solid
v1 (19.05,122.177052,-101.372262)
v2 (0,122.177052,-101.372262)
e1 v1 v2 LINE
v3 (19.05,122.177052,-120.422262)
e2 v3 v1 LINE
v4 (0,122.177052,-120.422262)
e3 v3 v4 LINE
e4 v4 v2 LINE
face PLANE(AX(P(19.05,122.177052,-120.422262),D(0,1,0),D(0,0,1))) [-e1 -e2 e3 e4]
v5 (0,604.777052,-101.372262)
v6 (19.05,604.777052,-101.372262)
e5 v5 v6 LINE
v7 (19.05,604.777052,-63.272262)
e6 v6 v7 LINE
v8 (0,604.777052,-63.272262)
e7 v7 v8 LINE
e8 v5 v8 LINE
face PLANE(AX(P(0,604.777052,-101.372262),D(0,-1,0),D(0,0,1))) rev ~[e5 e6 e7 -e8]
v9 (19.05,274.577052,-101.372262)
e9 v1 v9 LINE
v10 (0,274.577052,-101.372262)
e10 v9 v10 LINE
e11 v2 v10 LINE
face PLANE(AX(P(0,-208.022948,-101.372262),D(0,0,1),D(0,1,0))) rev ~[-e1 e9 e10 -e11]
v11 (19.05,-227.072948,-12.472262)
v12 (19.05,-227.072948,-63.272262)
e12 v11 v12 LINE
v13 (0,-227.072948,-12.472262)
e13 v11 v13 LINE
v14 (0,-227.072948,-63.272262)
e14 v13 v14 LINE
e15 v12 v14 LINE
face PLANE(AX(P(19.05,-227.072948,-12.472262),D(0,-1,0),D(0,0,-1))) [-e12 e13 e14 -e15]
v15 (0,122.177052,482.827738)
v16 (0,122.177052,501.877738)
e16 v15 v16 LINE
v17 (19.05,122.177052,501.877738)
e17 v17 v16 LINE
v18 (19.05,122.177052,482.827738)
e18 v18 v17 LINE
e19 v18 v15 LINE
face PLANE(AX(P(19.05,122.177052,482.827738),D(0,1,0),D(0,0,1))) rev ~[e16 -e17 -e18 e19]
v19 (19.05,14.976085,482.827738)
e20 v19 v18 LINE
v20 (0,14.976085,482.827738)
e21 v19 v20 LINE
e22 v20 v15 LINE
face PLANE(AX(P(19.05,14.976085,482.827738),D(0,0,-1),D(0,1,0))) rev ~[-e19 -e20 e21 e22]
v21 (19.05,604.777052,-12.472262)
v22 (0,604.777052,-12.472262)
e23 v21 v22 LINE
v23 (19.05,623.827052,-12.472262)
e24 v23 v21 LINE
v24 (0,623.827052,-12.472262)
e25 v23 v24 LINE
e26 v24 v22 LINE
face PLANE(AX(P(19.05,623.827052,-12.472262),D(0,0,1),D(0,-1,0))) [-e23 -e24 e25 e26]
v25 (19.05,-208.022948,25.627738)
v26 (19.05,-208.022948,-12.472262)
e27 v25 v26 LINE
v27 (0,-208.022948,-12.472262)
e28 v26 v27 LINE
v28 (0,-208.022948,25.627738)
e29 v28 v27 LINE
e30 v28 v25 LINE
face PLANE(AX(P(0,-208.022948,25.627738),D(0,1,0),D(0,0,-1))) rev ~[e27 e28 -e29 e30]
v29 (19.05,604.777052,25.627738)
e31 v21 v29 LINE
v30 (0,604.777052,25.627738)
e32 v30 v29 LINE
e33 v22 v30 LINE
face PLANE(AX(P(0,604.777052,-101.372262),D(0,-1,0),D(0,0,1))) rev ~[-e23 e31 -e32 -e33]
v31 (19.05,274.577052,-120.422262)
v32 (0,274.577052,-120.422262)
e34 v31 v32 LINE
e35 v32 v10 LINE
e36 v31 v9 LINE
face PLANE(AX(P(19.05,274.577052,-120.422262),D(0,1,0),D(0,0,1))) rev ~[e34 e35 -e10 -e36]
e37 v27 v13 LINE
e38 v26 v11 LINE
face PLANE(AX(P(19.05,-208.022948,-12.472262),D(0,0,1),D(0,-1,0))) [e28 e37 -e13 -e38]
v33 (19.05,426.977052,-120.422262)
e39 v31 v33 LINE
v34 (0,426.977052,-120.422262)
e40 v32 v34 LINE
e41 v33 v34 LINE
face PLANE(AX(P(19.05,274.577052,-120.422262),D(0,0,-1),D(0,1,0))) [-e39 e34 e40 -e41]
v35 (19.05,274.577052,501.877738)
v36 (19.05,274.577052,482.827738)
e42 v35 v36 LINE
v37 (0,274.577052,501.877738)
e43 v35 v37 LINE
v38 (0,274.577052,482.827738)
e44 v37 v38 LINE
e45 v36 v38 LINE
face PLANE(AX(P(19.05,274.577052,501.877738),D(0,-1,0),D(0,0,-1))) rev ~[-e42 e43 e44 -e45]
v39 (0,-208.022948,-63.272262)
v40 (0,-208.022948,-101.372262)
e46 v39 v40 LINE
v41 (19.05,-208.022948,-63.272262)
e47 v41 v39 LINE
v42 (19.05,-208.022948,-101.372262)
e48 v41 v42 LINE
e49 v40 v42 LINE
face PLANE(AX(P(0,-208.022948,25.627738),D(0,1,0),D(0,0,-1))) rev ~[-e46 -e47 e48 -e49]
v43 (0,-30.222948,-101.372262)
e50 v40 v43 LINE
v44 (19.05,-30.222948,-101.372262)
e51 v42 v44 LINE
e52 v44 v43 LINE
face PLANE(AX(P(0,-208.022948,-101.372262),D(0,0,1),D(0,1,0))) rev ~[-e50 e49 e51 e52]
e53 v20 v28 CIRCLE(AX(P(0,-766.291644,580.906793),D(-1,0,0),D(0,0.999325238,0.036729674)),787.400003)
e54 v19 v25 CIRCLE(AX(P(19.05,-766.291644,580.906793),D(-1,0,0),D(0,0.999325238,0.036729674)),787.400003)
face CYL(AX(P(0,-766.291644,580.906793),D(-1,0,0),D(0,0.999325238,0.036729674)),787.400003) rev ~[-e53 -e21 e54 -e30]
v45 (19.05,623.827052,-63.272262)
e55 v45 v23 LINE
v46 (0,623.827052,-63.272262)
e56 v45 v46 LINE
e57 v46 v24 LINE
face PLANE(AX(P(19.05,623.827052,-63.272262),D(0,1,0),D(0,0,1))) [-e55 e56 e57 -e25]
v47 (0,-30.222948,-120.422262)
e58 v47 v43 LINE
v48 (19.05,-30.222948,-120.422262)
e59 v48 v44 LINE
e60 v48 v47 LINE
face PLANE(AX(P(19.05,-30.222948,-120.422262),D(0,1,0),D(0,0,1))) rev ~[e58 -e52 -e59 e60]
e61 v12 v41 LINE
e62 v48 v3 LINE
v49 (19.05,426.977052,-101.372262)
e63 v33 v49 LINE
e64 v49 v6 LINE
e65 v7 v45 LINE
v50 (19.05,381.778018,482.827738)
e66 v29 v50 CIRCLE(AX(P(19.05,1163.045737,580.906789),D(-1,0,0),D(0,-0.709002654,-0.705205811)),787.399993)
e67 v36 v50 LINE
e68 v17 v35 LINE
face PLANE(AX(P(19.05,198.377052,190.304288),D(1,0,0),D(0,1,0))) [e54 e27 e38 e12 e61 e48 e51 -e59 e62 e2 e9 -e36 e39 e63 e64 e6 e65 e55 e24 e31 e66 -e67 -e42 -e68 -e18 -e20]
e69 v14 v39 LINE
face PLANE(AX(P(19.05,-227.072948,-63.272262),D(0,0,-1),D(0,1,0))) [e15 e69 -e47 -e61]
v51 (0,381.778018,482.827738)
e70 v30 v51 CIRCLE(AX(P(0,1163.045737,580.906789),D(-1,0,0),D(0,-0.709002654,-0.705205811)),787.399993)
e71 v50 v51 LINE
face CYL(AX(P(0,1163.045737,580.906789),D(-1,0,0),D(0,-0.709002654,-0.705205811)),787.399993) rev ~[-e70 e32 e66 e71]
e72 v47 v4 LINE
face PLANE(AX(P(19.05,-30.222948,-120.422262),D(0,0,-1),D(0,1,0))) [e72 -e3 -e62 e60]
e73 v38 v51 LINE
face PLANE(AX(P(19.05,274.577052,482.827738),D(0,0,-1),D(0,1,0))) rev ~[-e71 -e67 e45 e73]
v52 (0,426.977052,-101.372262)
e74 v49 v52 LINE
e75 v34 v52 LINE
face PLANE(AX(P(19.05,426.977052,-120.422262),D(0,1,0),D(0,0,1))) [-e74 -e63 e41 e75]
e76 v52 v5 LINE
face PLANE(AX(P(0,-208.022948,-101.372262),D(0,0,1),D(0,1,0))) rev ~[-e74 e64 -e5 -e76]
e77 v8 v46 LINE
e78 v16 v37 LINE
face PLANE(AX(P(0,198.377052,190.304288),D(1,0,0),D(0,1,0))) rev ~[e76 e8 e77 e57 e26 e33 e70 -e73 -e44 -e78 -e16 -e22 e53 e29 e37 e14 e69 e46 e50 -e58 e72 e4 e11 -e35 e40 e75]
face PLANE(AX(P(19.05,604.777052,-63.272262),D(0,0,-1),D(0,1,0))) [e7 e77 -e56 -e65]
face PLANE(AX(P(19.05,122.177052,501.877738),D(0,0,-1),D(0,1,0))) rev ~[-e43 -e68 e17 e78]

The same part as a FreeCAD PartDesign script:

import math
import FreeCAD as App
import Part
import Sketcher

V = App.Vector
Q = App.Units.Quantity

doc = App.newDocument("Part")
body = doc.addObject("PartDesign::Body", "Body")

sketch1 = doc.addObject("Sketcher::SketchObject", "Sketch")
body.addObject(sketch1)
sketch1.AttachmentSupport = (doc.YZ_Plane, [""])
sketch1.MapMode = "FlatFace"
sketch1.addGeometry([
    Part.LineSegment(V(-208.022948, 25.627738, 0), V(-208.022948, -101.372262, 0)),
    Part.LineSegment(V(-208.022948, -101.372262, 0), V(604.777052, -101.372262, 0)),
    Part.LineSegment(V(604.777052, -101.372262, 0), V(604.777052, 25.627738, 0)),
    Part.ArcOfCircle(Part.Circle(V(1163.045737, 580.906789, 0), V(0, 0, 1), 787.399993), math.radians(177.895071), math.radians(224.846174)),
    Part.LineSegment(V(376.177052, 609.827738, 0), V(20.577052, 609.827738, 0)),
    Part.ArcOfCircle(Part.Circle(V(-766.291644, 580.906793, 0), V(0, 0, 1), 787.400003), math.radians(-44.846173), math.radians(2.104929)),
], False)
sketch1.addConstraint([
    Sketcher.Constraint("Coincident", 0, 2, 1, 1),
    Sketcher.Constraint("Coincident", 1, 2, 2, 1),
    Sketcher.Constraint("Coincident", 2, 2, 3, 2),
    Sketcher.Constraint("Coincident", 3, 1, 4, 1),
    Sketcher.Constraint("Coincident", 4, 2, 5, 2),
    Sketcher.Constraint("Coincident", 5, 1, 0, 1),
    Sketcher.Constraint("Vertical", 0),
    Sketcher.Constraint("Horizontal", 1),
    Sketcher.Constraint("Vertical", 2),
    Sketcher.Constraint("Horizontal", 4),
    Sketcher.Constraint("Horizontal", 2, 2, 5, 1),
    Sketcher.Constraint("Radius", 5, Q("31.0000001 in")),
    Sketcher.Constraint("DistanceX", 1, 1, 1, 2, Q("32 in")),
    Sketcher.Constraint("DistanceX", 4, 2, 4, 1, Q("14 in")),
    Sketcher.Constraint("DistanceY", 0, 2, 0, 1, Q("5 in")),
    Sketcher.Constraint("DistanceX", 3, 1, 2, 2, Q("9 in")),
    Sketcher.Constraint("DistanceY", 0, 2, 4, 2, Q("28 in")),
    Sketcher.Constraint("Radius", 3, Q("787.399993 mm")),
    Sketcher.Constraint("DistanceY", -1, 1, 3, 3, Q("580.906789 mm")),
    Sketcher.Constraint("DistanceX", 0, 2, -1, 1, Q("208.022948 mm")),
])
pad1 = doc.addObject("PartDesign::Pad", "Pad")
body.addObject(pad1)
pad1.Profile = sketch1
pad1.Length = Q("0.75 in")

sketch2 = doc.addObject("Sketcher::SketchObject", "Sketch001")
body.addObject(sketch2)
sketch2.AttachmentSupport = (doc.YZ_Plane, [""])
sketch2.MapMode = "FlatFace"
sketch2.AttachmentOffset = App.Placement(V(0, 0, 0.75 * 25.4), App.Rotation())
sketch2.addGeometry([
    Part.LineSegment(V(274.577052, 628.877738, 0), V(122.177052, 628.877738, 0)),
    Part.LineSegment(V(122.177052, 628.877738, 0), V(122.177052, 609.827738, 0)),
    Part.LineSegment(V(122.177052, 609.827738, 0), V(274.577052, 609.827738, 0)),
    Part.LineSegment(V(274.577052, 609.827738, 0), V(274.577052, 628.877738, 0)),
    Part.LineSegment(V(-227.072948, -12.472262, 0), V(-227.072948, -63.272262, 0)),
    Part.LineSegment(V(-227.072948, -63.272262, 0), V(-208.022948, -63.272262, 0)),
    Part.LineSegment(V(-208.022948, -63.272262, 0), V(-208.022948, -12.472262, 0)),
    Part.LineSegment(V(-208.022948, -12.472262, 0), V(-227.072948, -12.472262, 0)),
    Part.LineSegment(V(-30.222948, -101.372262, 0), V(-30.222948, -120.422262, 0)),
    Part.LineSegment(V(-30.222948, -120.422262, 0), V(122.177052, -120.422262, 0)),
    Part.LineSegment(V(122.177052, -120.422262, 0), V(122.177052, -101.372262, 0)),
    Part.LineSegment(V(122.177052, -101.372262, 0), V(-30.222948, -101.372262, 0)),
    Part.LineSegment(V(274.577052, -101.372262, 0), V(274.577052, -120.422262, 0)),
    Part.LineSegment(V(274.577052, -120.422262, 0), V(426.977052, -120.422262, 0)),
    Part.LineSegment(V(426.977052, -120.422262, 0), V(426.977052, -101.372262, 0)),
    Part.LineSegment(V(426.977052, -101.372262, 0), V(274.577052, -101.372262, 0)),
    Part.LineSegment(V(623.827052, -63.272262, 0), V(623.827052, -12.472262, 0)),
    Part.LineSegment(V(623.827052, -12.472262, 0), V(604.777052, -12.472262, 0)),
    Part.LineSegment(V(604.777052, -12.472262, 0), V(604.777052, -63.272262, 0)),
    Part.LineSegment(V(604.777052, -63.272262, 0), V(623.827052, -63.272262, 0)),
], False)
sketch2.addConstraint([
    Sketcher.Constraint("Coincident", 0, 2, 1, 1),
    Sketcher.Constraint("Coincident", 1, 2, 2, 1),
    Sketcher.Constraint("Coincident", 2, 2, 3, 1),
    Sketcher.Constraint("Coincident", 3, 2, 0, 1),
    Sketcher.Constraint("Coincident", 4, 2, 5, 1),
    Sketcher.Constraint("Coincident", 5, 2, 6, 1),
    Sketcher.Constraint("Coincident", 6, 2, 7, 1),
    Sketcher.Constraint("Coincident", 7, 2, 4, 1),
    Sketcher.Constraint("Coincident", 8, 2, 9, 1),
    Sketcher.Constraint("Coincident", 9, 2, 10, 1),
    Sketcher.Constraint("Coincident", 10, 2, 11, 1),
    Sketcher.Constraint("Coincident", 11, 2, 8, 1),
    Sketcher.Constraint("Coincident", 12, 2, 13, 1),
    Sketcher.Constraint("Coincident", 13, 2, 14, 1),
    Sketcher.Constraint("Coincident", 14, 2, 15, 1),
    Sketcher.Constraint("Coincident", 15, 2, 12, 1),
    Sketcher.Constraint("Coincident", 16, 2, 17, 1),
    Sketcher.Constraint("Coincident", 17, 2, 18, 1),
    Sketcher.Constraint("Coincident", 18, 2, 19, 1),
    Sketcher.Constraint("Coincident", 19, 2, 16, 1),
    Sketcher.Constraint("Horizontal", 0),
    Sketcher.Constraint("Vertical", 1),
    Sketcher.Constraint("Horizontal", 2),
    Sketcher.Constraint("Vertical", 3),
    Sketcher.Constraint("Vertical", 4),
    Sketcher.Constraint("Horizontal", 5),
    Sketcher.Constraint("Vertical", 6),
    Sketcher.Constraint("Horizontal", 7),
    Sketcher.Constraint("Vertical", 8),
    Sketcher.Constraint("Horizontal", 9),
    Sketcher.Constraint("Vertical", 10),
    Sketcher.Constraint("Horizontal", 11),
    Sketcher.Constraint("Vertical", 12),
    Sketcher.Constraint("Horizontal", 13),
    Sketcher.Constraint("Vertical", 14),
    Sketcher.Constraint("Horizontal", 15),
    Sketcher.Constraint("Vertical", 16),
    Sketcher.Constraint("Horizontal", 17),
    Sketcher.Constraint("Vertical", 18),
    Sketcher.Constraint("Horizontal", 19),
    Sketcher.Constraint("Horizontal", 9, 2, 12, 2),
    Sketcher.Constraint("Horizontal", 11, 2, 14, 2),
    Sketcher.Constraint("Horizontal", 7, 2, 16, 2),
    Sketcher.Constraint("Horizontal", 5, 2, 18, 2),
    Sketcher.Constraint("Vertical", 1, 2, 9, 2),
    Sketcher.Constraint("Vertical", 3, 2, 12, 2),
    Sketcher.Constraint("Equal", 2, 9),
    Sketcher.Constraint("Equal", 11, 13),
    Sketcher.Constraint("Equal", 7, 17),
    Sketcher.Constraint("Equal", 19, 1),
    Sketcher.Constraint("Equal", 3, 8),
    Sketcher.Constraint("DistanceX", 0, 2, 0, 1, Q("6 in")),
    Sketcher.Constraint("DistanceY", 4, 2, 4, 1, Q("2 in")),
    Sketcher.Constraint("DistanceX", 5, 2, 1, 2, Q("13 in")),
    Sketcher.Constraint("DistanceX", 14, 2, 17, 2, Q("7 in")),
    Sketcher.Constraint("DistanceX", 5, 1, 5, 2, Q("0.75 in")),
    Sketcher.Constraint("DistanceY", 4, 2, 1, 2, Q("26.5 in")),
    Sketcher.Constraint("DistanceY", 10, 2, 5, 2, Q("1.5 in")),
    Sketcher.Constraint("DistanceY", -1, 1, 0, 2, Q("628.877738 mm")),
    Sketcher.Constraint("DistanceX", -1, 1, 2, 2, Q("274.577052 mm")),
])
pad2 = doc.addObject("PartDesign::Pad", "Pad001")
body.addObject(pad2)
pad2.Profile = sketch2
pad2.Length = Q("0.75 in")
pad2.Reversed = True

sketch3 = doc.addObject("Sketcher::SketchObject", "Sketch002")
body.addObject(sketch3)
sketch3.AttachmentSupport = (doc.YZ_Plane, [""])
sketch3.MapMode = "FlatFace"
sketch3.addGeometry([
    Part.LineSegment(V(-208.022948, 25.627738, 0), V(-208.022948, -101.372262, 0)),
    Part.LineSegment(V(-208.022948, -101.372262, 0), V(604.777052, -101.372262, 0)),
    Part.LineSegment(V(604.777052, -101.372262, 0), V(604.777052, 25.627738, 0)),
    Part.ArcOfCircle(Part.Circle(V(1163.045737, 580.906789, 0), V(0, 0, 1), 787.399993), math.radians(177.895071), math.radians(224.846174)),
    Part.LineSegment(V(376.177052, 609.827738, 0), V(20.577052, 609.827738, 0)),
    Part.ArcOfCircle(Part.Circle(V(-766.291644, 580.906793, 0), V(0, 0, 1), 787.400003), math.radians(-44.846173), math.radians(2.104929)),
], False)
sketch3.addConstraint([
    Sketcher.Constraint("Coincident", 0, 2, 1, 1),
    Sketcher.Constraint("Coincident", 1, 2, 2, 1),
    Sketcher.Constraint("Coincident", 2, 2, 3, 2),
    Sketcher.Constraint("Coincident", 3, 1, 4, 1),
    Sketcher.Constraint("Coincident", 4, 2, 5, 2),
    Sketcher.Constraint("Coincident", 5, 1, 0, 1),
    Sketcher.Constraint("Vertical", 0),
    Sketcher.Constraint("Horizontal", 1),
    Sketcher.Constraint("Vertical", 2),
    Sketcher.Constraint("Horizontal", 4),
    Sketcher.Constraint("Horizontal", 2, 2, 5, 1),
    Sketcher.Constraint("Radius", 5, Q("31.0000001 in")),
    Sketcher.Constraint("DistanceX", 1, 1, 1, 2, Q("32 in")),
    Sketcher.Constraint("DistanceX", 4, 2, 4, 1, Q("14 in")),
    Sketcher.Constraint("DistanceY", 0, 2, 0, 1, Q("5 in")),
    Sketcher.Constraint("DistanceX", 3, 1, 2, 2, Q("9 in")),
    Sketcher.Constraint("DistanceY", 0, 2, 4, 2, Q("28 in")),
    Sketcher.Constraint("Radius", 3, Q("787.399993 mm")),
    Sketcher.Constraint("DistanceY", -1, 1, 3, 3, Q("580.906789 mm")),
    Sketcher.Constraint("DistanceX", 0, 2, -1, 1, Q("208.022948 mm")),
])
pad3 = doc.addObject("PartDesign::Pad", "Pad002")
body.addObject(pad3)
pad3.Profile = sketch3
pad3.Length = Q("0.75 in")

sketch4 = doc.addObject("Sketcher::SketchObject", "Sketch003")
body.addObject(sketch4)
sketch4.AttachmentSupport = (doc.YZ_Plane, [""])
sketch4.MapMode = "FlatFace"
sketch4.AttachmentOffset = App.Placement(V(0, 0, 0.75 * 25.4), App.Rotation())
sketch4.addGeometry([
    Part.ArcOfCircle(Part.Circle(V(-766.291677, 580.906796, 0), V(0, 0, 1), 787.400037), math.radians(-7.155384), math.radians(2.104928)),
    Part.LineSegment(V(14.976085, 482.827738, 0), V(122.177052, 482.827738, 0)),
    Part.LineSegment(V(122.177052, 482.827738, 0), V(122.177052, 501.877738, 0)),
    Part.LineSegment(V(122.177052, 501.877738, 0), V(274.577052, 501.877738, 0)),
    Part.LineSegment(V(274.577052, 501.877738, 0), V(274.577052, 482.827738, 0)),
    Part.LineSegment(V(274.577052, 482.827738, 0), V(381.778018, 482.827738, 0)),
    Part.ArcOfCircle(Part.Circle(V(1163.045628, 580.906783, 0), V(0, 0, 1), 787.399884), math.radians(177.89507), math.radians(187.155385)),
    Part.LineSegment(V(376.177052, 609.827738, 0), V(274.577052, 609.827738, 0)),
    Part.LineSegment(V(274.577052, 609.827738, 0), V(274.577052, 628.877738, 0)),
    Part.LineSegment(V(274.577052, 628.877738, 0), V(122.177052, 628.877738, 0)),
    Part.LineSegment(V(122.177052, 628.877738, 0), V(122.177052, 609.827738, 0)),
    Part.LineSegment(V(122.177052, 609.827738, 0), V(20.577052, 609.827738, 0)),
], False)
sketch4.addConstraint([
    Sketcher.Constraint("Coincident", 0, 1, 1, 1),
    Sketcher.Constraint("Coincident", 1, 2, 2, 1),
    Sketcher.Constraint("Coincident", 2, 2, 3, 1),
    Sketcher.Constraint("Coincident", 3, 2, 4, 1),
    Sketcher.Constraint("Coincident", 4, 2, 5, 1),
    Sketcher.Constraint("Coincident", 5, 2, 6, 2),
    Sketcher.Constraint("Coincident", 6, 1, 7, 1),
    Sketcher.Constraint("Coincident", 7, 2, 8, 1),
    Sketcher.Constraint("Coincident", 8, 2, 9, 1),
    Sketcher.Constraint("Coincident", 9, 2, 10, 1),
    Sketcher.Constraint("Coincident", 10, 2, 11, 1),
    Sketcher.Constraint("Coincident", 11, 2, 0, 2),
    Sketcher.Constraint("Horizontal", 1),
    Sketcher.Constraint("Vertical", 2),
    Sketcher.Constraint("Horizontal", 3),
    Sketcher.Constraint("Vertical", 4),
    Sketcher.Constraint("Horizontal", 5),
    Sketcher.Constraint("Horizontal", 7),
    Sketcher.Constraint("Vertical", 8),
    Sketcher.Constraint("Horizontal", 9),
    Sketcher.Constraint("Vertical", 10),
    Sketcher.Constraint("Horizontal", 11),
    Sketcher.Constraint("Horizontal", 1, 2, 4, 2),
    Sketcher.Constraint("Horizontal", 7, 2, 10, 2),
    Sketcher.Constraint("Vertical", 4, 2, 7, 2),
    Sketcher.Constraint("Vertical", 2, 2, 9, 2),
    Sketcher.Constraint("Equal", 1, 5),
    Sketcher.Constraint("Equal", 7, 11),
    Sketcher.Constraint("Equal", 4, 8),
    Sketcher.Constraint("DistanceX", 3, 1, 3, 2, Q("6 in")),
    Sketcher.Constraint("DistanceX", 7, 2, 7, 1, Q("4 in")),
    Sketcher.Constraint("DistanceY", 4, 2, 7, 2, Q("5 in")),
    Sketcher.Constraint("DistanceY", 2, 1, 2, 2, Q("0.75 in")),
    Sketcher.Constraint("Radius", 0, Q("787.400037 mm")),
    Sketcher.Constraint("Radius", 6, Q("787.399884 mm")),
    Sketcher.Constraint("DistanceX", 1, 1, 1, 2, Q("107.200967 mm")),
    Sketcher.Constraint("DistanceY", -1, 1, 1, 2, Q("482.827738 mm")),
    Sketcher.Constraint("DistanceX", -1, 1, 3, 2, Q("274.577052 mm")),
])
pocket1 = doc.addObject("PartDesign::Pocket", "Pocket")
body.addObject(pocket1)
pocket1.Profile = sketch4
pocket1.Type = "ThroughAll"

doc.recompute()
